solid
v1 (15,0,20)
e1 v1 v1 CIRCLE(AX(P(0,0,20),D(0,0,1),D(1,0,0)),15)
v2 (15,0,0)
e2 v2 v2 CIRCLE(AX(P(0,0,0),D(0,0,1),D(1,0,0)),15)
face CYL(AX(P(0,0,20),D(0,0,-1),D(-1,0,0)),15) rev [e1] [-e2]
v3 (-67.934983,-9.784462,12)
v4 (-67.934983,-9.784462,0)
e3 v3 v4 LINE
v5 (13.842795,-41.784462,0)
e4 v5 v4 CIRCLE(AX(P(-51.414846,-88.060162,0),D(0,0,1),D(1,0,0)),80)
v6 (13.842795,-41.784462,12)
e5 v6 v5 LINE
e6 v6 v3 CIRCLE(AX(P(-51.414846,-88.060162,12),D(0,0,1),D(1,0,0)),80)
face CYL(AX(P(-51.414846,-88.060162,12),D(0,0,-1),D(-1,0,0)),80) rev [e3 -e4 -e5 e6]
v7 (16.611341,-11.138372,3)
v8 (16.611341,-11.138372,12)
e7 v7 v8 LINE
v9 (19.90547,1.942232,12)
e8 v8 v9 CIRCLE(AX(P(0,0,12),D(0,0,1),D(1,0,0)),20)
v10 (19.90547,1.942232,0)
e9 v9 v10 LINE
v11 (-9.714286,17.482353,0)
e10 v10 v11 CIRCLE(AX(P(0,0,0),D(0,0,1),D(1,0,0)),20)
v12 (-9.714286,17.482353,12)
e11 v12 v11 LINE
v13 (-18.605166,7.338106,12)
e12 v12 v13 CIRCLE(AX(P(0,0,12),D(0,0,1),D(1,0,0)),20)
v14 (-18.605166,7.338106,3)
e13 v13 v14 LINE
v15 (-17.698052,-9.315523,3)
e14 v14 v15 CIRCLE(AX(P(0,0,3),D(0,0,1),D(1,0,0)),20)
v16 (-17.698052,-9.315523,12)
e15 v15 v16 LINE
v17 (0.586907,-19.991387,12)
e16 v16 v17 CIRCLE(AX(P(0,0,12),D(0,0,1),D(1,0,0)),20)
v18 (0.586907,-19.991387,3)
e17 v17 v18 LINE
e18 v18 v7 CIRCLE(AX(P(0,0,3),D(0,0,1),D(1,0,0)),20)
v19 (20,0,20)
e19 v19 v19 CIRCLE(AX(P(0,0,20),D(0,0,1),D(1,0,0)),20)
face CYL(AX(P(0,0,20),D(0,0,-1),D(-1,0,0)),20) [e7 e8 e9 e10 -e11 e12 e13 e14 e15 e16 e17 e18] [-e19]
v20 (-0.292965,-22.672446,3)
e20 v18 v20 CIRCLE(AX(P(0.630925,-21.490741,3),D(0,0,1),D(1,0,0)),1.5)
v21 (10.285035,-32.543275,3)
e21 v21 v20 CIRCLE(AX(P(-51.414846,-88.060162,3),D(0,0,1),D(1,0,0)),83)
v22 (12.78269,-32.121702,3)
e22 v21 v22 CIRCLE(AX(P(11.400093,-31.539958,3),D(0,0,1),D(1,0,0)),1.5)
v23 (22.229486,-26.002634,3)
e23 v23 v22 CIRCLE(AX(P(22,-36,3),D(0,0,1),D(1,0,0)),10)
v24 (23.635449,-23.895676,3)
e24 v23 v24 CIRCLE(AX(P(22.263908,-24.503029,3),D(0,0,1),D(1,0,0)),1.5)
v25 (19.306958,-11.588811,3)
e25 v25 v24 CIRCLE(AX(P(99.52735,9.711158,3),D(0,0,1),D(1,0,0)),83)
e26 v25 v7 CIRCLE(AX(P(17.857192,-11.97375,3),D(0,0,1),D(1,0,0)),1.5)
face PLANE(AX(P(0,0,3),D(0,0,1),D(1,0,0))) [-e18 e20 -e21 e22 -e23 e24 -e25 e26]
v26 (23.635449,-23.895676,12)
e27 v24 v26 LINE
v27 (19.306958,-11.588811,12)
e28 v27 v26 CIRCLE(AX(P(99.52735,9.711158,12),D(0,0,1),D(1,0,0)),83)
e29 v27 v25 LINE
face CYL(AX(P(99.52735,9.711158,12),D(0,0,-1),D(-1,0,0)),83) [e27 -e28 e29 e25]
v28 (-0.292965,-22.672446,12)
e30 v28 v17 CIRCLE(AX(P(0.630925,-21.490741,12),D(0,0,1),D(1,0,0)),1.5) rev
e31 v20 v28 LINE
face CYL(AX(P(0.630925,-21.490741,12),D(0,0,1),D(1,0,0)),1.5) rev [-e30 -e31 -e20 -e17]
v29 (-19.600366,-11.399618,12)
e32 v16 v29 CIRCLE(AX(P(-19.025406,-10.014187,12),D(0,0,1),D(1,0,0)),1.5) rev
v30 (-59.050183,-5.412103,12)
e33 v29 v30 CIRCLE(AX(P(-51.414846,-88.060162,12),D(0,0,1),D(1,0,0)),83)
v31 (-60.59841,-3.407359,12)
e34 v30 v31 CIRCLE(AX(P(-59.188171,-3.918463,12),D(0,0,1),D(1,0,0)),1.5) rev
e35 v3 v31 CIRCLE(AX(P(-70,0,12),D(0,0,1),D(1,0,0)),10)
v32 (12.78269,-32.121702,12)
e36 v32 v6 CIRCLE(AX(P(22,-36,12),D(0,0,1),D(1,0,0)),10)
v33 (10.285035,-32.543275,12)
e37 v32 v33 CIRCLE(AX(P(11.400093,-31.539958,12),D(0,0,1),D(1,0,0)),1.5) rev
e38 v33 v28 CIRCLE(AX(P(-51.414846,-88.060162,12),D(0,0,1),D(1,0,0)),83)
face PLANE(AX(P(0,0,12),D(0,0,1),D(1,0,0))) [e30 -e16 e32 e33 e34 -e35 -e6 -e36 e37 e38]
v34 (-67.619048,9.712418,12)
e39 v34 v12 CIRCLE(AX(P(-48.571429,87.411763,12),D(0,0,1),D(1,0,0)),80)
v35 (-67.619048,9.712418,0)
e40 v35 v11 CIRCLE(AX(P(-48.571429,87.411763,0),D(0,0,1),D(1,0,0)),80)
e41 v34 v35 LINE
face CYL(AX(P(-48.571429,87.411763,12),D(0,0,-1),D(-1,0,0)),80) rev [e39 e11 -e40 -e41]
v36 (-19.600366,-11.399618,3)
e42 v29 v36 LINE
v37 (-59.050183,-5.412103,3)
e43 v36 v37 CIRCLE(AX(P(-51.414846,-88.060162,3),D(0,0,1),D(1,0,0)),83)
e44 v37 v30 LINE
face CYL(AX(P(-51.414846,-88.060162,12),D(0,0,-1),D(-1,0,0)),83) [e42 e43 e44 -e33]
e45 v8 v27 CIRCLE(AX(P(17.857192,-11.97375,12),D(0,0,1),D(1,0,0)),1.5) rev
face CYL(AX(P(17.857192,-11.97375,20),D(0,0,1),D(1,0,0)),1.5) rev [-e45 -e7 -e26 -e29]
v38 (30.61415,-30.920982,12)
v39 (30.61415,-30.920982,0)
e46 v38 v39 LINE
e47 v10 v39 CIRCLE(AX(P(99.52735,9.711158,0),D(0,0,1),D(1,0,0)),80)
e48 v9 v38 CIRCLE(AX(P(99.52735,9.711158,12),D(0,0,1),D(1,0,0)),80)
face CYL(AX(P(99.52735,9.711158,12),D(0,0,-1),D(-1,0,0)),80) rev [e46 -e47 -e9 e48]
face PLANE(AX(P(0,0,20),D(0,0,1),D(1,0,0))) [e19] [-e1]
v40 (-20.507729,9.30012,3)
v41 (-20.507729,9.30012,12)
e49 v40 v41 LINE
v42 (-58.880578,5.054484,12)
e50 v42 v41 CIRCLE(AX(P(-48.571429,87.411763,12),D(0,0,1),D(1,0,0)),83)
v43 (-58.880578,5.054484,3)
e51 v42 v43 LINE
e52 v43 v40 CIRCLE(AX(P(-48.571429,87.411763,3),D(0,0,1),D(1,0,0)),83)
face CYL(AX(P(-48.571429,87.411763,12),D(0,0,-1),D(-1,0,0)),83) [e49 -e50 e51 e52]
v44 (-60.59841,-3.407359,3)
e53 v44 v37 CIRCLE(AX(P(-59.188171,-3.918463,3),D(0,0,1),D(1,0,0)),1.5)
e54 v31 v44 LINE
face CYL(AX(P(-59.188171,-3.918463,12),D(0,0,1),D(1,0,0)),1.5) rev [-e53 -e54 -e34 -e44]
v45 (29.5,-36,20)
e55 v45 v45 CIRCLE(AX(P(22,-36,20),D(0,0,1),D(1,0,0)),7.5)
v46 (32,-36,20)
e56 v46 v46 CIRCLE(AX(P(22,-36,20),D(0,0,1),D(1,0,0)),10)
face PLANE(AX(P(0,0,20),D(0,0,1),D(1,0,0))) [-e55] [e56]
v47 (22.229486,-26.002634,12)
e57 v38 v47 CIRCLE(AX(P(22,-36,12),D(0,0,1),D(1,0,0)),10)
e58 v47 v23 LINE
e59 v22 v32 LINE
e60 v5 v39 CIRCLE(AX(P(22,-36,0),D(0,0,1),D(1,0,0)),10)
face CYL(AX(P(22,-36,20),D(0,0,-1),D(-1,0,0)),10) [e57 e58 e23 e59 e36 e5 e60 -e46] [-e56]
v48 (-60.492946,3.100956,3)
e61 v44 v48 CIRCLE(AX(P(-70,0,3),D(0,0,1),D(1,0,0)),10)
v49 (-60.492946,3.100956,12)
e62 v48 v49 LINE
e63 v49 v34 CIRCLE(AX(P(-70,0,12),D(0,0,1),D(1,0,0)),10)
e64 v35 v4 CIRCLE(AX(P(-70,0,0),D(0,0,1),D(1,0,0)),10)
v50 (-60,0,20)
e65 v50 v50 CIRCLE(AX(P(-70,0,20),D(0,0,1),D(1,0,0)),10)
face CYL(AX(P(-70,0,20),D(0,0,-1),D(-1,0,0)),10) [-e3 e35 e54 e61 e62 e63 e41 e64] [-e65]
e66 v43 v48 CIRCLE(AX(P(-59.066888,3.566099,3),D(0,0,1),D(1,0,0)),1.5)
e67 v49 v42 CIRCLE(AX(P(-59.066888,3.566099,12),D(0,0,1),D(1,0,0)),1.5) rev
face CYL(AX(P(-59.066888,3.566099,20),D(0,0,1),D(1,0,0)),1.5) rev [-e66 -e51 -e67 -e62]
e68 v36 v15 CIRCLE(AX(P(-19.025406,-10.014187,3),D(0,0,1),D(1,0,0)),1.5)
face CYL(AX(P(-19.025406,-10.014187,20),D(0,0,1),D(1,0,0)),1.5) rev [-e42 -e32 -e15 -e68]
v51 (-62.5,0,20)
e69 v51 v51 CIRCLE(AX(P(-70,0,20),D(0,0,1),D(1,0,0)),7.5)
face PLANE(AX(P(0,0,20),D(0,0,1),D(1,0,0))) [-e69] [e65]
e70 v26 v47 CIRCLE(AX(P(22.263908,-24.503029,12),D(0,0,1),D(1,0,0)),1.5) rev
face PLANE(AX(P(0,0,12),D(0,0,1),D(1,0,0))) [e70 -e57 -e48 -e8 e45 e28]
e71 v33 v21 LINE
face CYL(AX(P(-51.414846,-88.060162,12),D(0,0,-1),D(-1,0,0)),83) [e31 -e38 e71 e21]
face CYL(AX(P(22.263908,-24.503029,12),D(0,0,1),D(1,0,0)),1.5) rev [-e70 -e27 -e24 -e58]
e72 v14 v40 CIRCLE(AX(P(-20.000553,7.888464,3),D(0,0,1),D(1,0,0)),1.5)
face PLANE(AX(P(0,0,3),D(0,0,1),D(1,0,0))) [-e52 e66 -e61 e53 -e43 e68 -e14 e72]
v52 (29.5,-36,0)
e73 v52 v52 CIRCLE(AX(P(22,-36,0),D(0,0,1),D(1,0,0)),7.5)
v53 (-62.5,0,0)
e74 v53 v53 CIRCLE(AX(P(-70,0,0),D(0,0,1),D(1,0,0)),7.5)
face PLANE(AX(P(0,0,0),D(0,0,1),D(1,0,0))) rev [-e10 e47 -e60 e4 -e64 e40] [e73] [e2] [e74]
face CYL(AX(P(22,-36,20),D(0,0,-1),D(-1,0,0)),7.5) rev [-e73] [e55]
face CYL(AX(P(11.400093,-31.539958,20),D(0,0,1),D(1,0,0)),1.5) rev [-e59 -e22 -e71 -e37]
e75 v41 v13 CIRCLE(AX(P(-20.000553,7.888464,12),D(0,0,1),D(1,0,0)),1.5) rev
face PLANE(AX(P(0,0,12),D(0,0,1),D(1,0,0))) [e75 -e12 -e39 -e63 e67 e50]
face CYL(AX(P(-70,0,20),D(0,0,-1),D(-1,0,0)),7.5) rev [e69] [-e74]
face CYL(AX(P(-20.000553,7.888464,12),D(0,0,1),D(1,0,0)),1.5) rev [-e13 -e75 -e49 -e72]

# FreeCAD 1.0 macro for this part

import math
import FreeCAD as App
import Part
import Sketcher
from FreeCAD import Vector
Q = App.Units.Quantity


def edges_at(feature, points):
    """Names of the edges that pass closest to the given points."""
    edges = feature.Shape.Edges
    near = lambda p: min(range(len(edges)), key=lambda i: edges[i].distToShape(Part.Vertex(*p))[0])
    return sorted({f"Edge{near(p) + 1}" for p in points})

doc = App.newDocument("Part")
params = doc.addObject("Spreadsheet::Sheet", "Params")
for row, (alias, value) in enumerate([
    ("sketch1_diameter", "40 mm"),
    ("pad1_length", "20 mm"),
    ("sketch2_diameter", "30 mm"),
    ("pocket1_length", "20 mm"),
    ("sketch3_diameter", "20 mm"),
    ("sketch3_diameter2", "15 mm"),
    ("pad2_length", "20 mm"),
    ("sketch4_radius", "10 mm"),
    ("sketch4_radius2", "83 mm"),
    ("sketch4_radius3", "20 mm"),
    ("sketch4_radius4", "80 mm"),
    ("pad3_length", "12 mm"),
    ("sketch5_radius", "10 mm"),
    ("sketch5_radius2", "83 mm"),
    ("sketch5_radius3", "20 mm"),
    ("pad4_length", "3 mm"),
    ("fillet_radius", "1.5 mm"),
], start=1):
    params.set(f"A{row}", alias)
    params.set(f"B{row}", "=" + value)
    params.setAlias(f"B{row}", alias)

body = doc.addObject("PartDesign::Body", "Body")

sketch1 = body.newObject("Sketcher::SketchObject", "Sketch")
sketch1.AttachmentSupport = (doc.getObject("XY_Plane"), [""])
sketch1.MapMode = "FlatFace"
sketch1.addGeometry(Part.Circle(Vector(0, 0, 0), Vector(0, 0, 1), 20), False)
sketch1.addConstraint(Sketcher.Constraint("Coincident", 0, 3, -1, 1))
sketch1.addConstraint(Sketcher.Constraint("Diameter", 0, Q("40 mm")))
sketch1.setExpression("Constraints[1]", "Params.sketch1_diameter")
pad1 = body.newObject("PartDesign::Pad", "Pad")
pad1.Profile = sketch1
pad1.setExpression("Length", "Params.pad1_length")

sketch2 = body.newObject("Sketcher::SketchObject", "Sketch001")
sketch2.AttachmentSupport = (doc.getObject("XY_Plane"), [""])
sketch2.MapMode = "FlatFace"
sketch2.addGeometry(Part.Circle(Vector(0, 0, 0), Vector(0, 0, 1), 15), False)
sketch2.addConstraint(Sketcher.Constraint("Coincident", 0, 3, -1, 1))
sketch2.addConstraint(Sketcher.Constraint("Diameter", 0, Q("30 mm")))
sketch2.setExpression("Constraints[1]", "Params.sketch2_diameter")
pocket1 = body.newObject("PartDesign::Pocket", "Pocket")
pocket1.Profile = sketch2
pocket1.setExpression("Length", "Params.pocket1_length")
pocket1.Reversed = True
body2 = doc.addObject("PartDesign::Body", "Body001")
body2.AllowCompound = True

sketch3 = body2.newObject("Sketcher::SketchObject", "Sketch002")
sketch3.AttachmentSupport = (doc.getObject("XY_Plane001"), [""])
sketch3.MapMode = "FlatFace"
sketch3.addGeometry(Part.Circle(Vector(-70, 0, 0), Vector(0, 0, 1), 10), False)
sketch3.addGeometry(Part.Circle(Vector(-70, 0, 0), Vector(0, 0, 1), 8), False)
sketch3.addGeometry(Part.Circle(Vector(22, -36, 0), Vector(0, 0, 1), 10), False)
sketch3.addGeometry(Part.Circle(Vector(22, -36, 0), Vector(0, 0, 1), 8), False)
sketch3.addConstraint(Sketcher.Constraint("Coincident", 1, 3, 0, 3))
sketch3.addConstraint(Sketcher.Constraint("Coincident", 3, 3, 2, 3))
sketch3.addConstraint(Sketcher.Constraint("Equal", 0, 2))
sketch3.addConstraint(Sketcher.Constraint("Equal", 1, 3))
sketch3.addConstraint(Sketcher.Constraint("PointOnObject", 0, 3, -1))
sketch3.addConstraint(Sketcher.Constraint("Diameter", 0, Q("20 mm")))
sketch3.addConstraint(Sketcher.Constraint("Diameter", 1, Q("15 mm")))
sketch3.addConstraint(Sketcher.Constraint("DistanceX", 0, 3, -1, 1, Q("70 mm")))
sketch3.addConstraint(Sketcher.Constraint("DistanceX", -1, 1, 2, 3, Q("22 mm")))
sketch3.addConstraint(Sketcher.Constraint("DistanceY", 2, 3, -1, 1, Q("36 mm")))
sketch3.setExpression("Constraints[5]", "Params.sketch3_diameter")
sketch3.setExpression("Constraints[6]", "Params.sketch3_diameter2")
pad2 = body2.newObject("PartDesign::Pad", "Pad001")
pad2.Profile = sketch3
pad2.setExpression("Length", "Params.pad2_length")
body.AllowCompound = True
doc.recompute()

boolean = body.newObject("PartDesign::Boolean", "Boolean")
boolean.Type = "Fuse"
boolean.addObjects([body2])

sketch4 = body.newObject("Sketcher::SketchObject", "Sketch003")
sketch4.AttachmentSupport = (doc.getObject("XY_Plane"), [""])
sketch4.MapMode = "FlatFace"
sketch4.addGeometry(Part.ArcOfCircle(Part.Circle(Vector(-70, 0, 0), Vector(0, 0, 1), 10), math.radians(33), math.radians(76)), False)
sketch4.addGeometry(Part.ArcOfCircle(Part.Circle(Vector(-48.6, 87.4, 0), Vector(0, 0, 1), 83), math.radians(-99), math.radians(-68)), False)
sketch4.addGeometry(Part.ArcOfCircle(Part.Circle(Vector(0, 0, 0), Vector(0, 0, 1), 20), math.radians(119), math.radians(148)), False)
sketch4.addGeometry(Part.ArcOfCircle(Part.Circle(Vector(-48.6, 87.4, 0), Vector(0, 0, 1), 80), math.radians(-104), math.radians(-61)), False)
sketch4.addGeometry(Part.ArcOfCircle(Part.Circle(Vector(-51.4, -88.1, 0), Vector(0, 0, 1), 83), math.radians(64), math.radians(97)), False)
sketch4.addGeometry(Part.ArcOfCircle(Part.Circle(Vector(-70, 0, 0), Vector(0, 0, 1), 10), math.radians(-78), math.radians(-35)), False)
sketch4.addGeometry(Part.ArcOfCircle(Part.Circle(Vector(-51.4, -88.1, 0), Vector(0, 0, 1), 80), math.radians(35), math.radians(102)), False)
sketch4.addGeometry(Part.ArcOfCircle(Part.Circle(Vector(22, -36, 0), Vector(0, 0, 1), 10), math.radians(172), math.radians(215)), False)
sketch4.addGeometry(Part.ArcOfCircle(Part.Circle(Vector(-51.4, -88.1, 0), Vector(0, 0, 1), 83), math.radians(40.08), math.radians(55.78)), False)
sketch4.addGeometry(Part.ArcOfCircle(Part.Circle(Vector(0, 0, 0), Vector(0, 0, 1), 20), math.radians(-137), math.radians(-104)), False)
sketch4.addGeometry(Part.ArcOfCircle(Part.Circle(Vector(99.5, 9.7, 0), Vector(0, 0, 1), 80), math.radians(-174), math.radians(-149)), False)
sketch4.addGeometry(Part.ArcOfCircle(Part.Circle(Vector(0, 0, 0), Vector(0, 0, 1), 20), math.radians(0), math.radians(5.57)), False)
sketch4.addGeometry(Part.ArcOfCircle(Part.Circle(Vector(0, 0, 0), Vector(0, 0, 1), 20), math.radians(-23), math.radians(0)), False)
sketch4.addGeometry(Part.ArcOfCircle(Part.Circle(Vector(99.5, 9.7, 0), Vector(0, 0, 1), 83), math.radians(-167.8), math.radians(-154.21)), False)
sketch4.addGeometry(Part.ArcOfCircle(Part.Circle(Vector(22, -36, 0), Vector(0, 0, 1), 10), math.radians(31), math.radians(74)), False)
sketch4.addConstraint(Sketcher.Constraint("Coincident", 0, 1, 1, 1))
sketch4.addConstraint(Sketcher.Constraint("Coincident", 1, 2, 2, 2))
sketch4.addConstraint(Sketcher.Constraint("Tangent", 2, 1, 3, 2))
sketch4.addConstraint(Sketcher.Constraint("Tangent", 3, 1, 0, 2))
sketch4.addConstraint(Sketcher.Constraint("Coincident", 4, 2, 5, 2))
sketch4.addConstraint(Sketcher.Constraint("Tangent", 5, 1, 6, 2))
sketch4.addConstraint(Sketcher.Constraint("Tangent", 6, 1, 7, 2))
sketch4.addConstraint(Sketcher.Constraint("Coincident", 7, 1, 8, 1))
sketch4.addConstraint(Sketcher.Constraint("Coincident", 8, 2, 9, 2))
sketch4.addConstraint(Sketcher.Constraint("Coincident", 9, 1, 4, 1))
sketch4.addConstraint(Sketcher.Constraint("Tangent", 10, 1, 11, 2))
sketch4.addConstraint(Sketcher.Constraint("Tangent", 11, 1, 12, 2))
sketch4.addConstraint(Sketcher.Constraint("Coincident", 12, 1, 13, 1))
sketch4.addConstraint(Sketcher.Constraint("Coincident", 13, 2, 14, 2))
sketch4.addConstraint(Sketcher.Constraint("Tangent", 14, 1, 10, 2))
sketch4.addConstraint(Sketcher.Constraint("Coincident", 2, 3, -1, 1))
sketch4.addConstraint(Sketcher.Constraint("Coincident", 9, 3, -1, 1))
sketch4.addConstraint(Sketcher.Constraint("Coincident", 11, 3, -1, 1))
sketch4.addConstraint(Sketcher.Constraint("Coincident", 3, 3, 1, 3))
sketch4.addConstraint(Sketcher.Constraint("Coincident", 5, 3, 0, 3))
sketch4.addConstraint(Sketcher.Constraint("Coincident", 6, 3, 4, 3))
sketch4.addConstraint(Sketcher.Constraint("Coincident", 8, 3, 4, 3))
sketch4.addConstraint(Sketcher.Constraint("Coincident", 13, 3, 10, 3))
sketch4.addConstraint(Sketcher.Constraint("Coincident", 14, 3, 7, 3))
sketch4.addConstraint(Sketcher.Constraint("Equal", 1, 4))
sketch4.addConstraint(Sketcher.Constraint("Equal", 0, 5))
sketch4.addConstraint(Sketcher.Constraint("Equal", 3, 6))
sketch4.addConstraint(Sketcher.Constraint("Equal", 5, 7))
sketch4.addConstraint(Sketcher.Constraint("Equal", 4, 8))
sketch4.addConstraint(Sketcher.Constraint("Equal", 2, 9))
sketch4.addConstraint(Sketcher.Constraint("Equal", 6, 10))
sketch4.addConstraint(Sketcher.Constraint("Equal", 9, 11))
sketch4.addConstraint(Sketcher.Constraint("Equal", 11, 12))
sketch4.addConstraint(Sketcher.Constraint("Equal", 8, 13))
sketch4.addConstraint(Sketcher.Constraint("Equal", 7, 14))
sketch4.addConstraint(Sketcher.Constraint("PointOnObject", 0, 3, -1))
sketch4.addConstraint(Sketcher.Constraint("PointOnObject", 11, 1, -1))
sketch4.addConstraint(Sketcher.Constraint("Radius", 0, Q("10 mm")))
sketch4.addConstraint(Sketcher.Constraint("Radius", 1, Q("83 mm")))
sketch4.addConstraint(Sketcher.Constraint("Radius", 2, Q("20 mm")))
sketch4.addConstraint(Sketcher.Constraint("Radius", 3, Q("80 mm")))
sketch4.addConstraint(Sketcher.Constraint("DistanceX", 0, 3, -1, 1, Q("70 mm")))
sketch4.addConstraint(Sketcher.Constraint("DistanceX", -1, 1, 7, 3, Q("22 mm")))
sketch4.addConstraint(Sketcher.Constraint("DistanceY", 7, 3, -1, 1, Q("36 mm")))
sketch4.setExpression("Constraints[37]", "Params.sketch4_radius")
sketch4.setExpression("Constraints[38]", "Params.sketch4_radius2")
sketch4.setExpression("Constraints[39]", "Params.sketch4_radius3")
sketch4.setExpression("Constraints[40]", "Params.sketch4_radius4")
pad3 = body.newObject("PartDesign::Pad", "Pad002")
pad3.Profile = sketch4
pad3.setExpression("Length", "Params.pad3_length")

sketch5 = body.newObject("Sketcher::SketchObject", "Sketch004")
sketch5.AttachmentSupport = (doc.getObject("XY_Plane"), [""])
sketch5.MapMode = "FlatFace"
sketch5.addGeometry(Part.ArcOfCircle(Part.Circle(Vector(-70, 0, 0), Vector(0, 0, 1), 10), math.radians(0), math.radians(33)), False)
sketch5.addGeometry(Part.ArcOfCircle(Part.Circle(Vector(-70, 0, 0), Vector(0, 0, 1), 10), math.radians(-35), math.radians(0)), False)
sketch5.addGeometry(Part.ArcOfCircle(Part.Circle(Vector(-51, -88, 0), Vector(0, 0, 1), 83), math.radians(64), math.radians(97)), False)
sketch5.addGeometry(Part.ArcOfCircle(Part.Circle(Vector(0, 0, 0), Vector(0, 0, 1), 20), math.radians(148), math.radians(223)), False)
sketch5.addGeometry(Part.ArcOfCircle(Part.Circle(Vector(-49, 87, 0), Vector(0, 0, 1), 83), math.radians(-99), math.radians(-68)), False)
sketch5.addGeometry(Part.ArcOfCircle(Part.Circle(Vector(0, 0, 0), Vector(0, 0, 1), 20), math.radians(-104), math.radians(-23)), False)
sketch5.addGeometry(Part.ArcOfCircle(Part.Circle(Vector(-51, -88, 0), Vector(0, 0, 1), 83), math.radians(40.08), math.radians(55.78)), False)
sketch5.addGeometry(Part.ArcOfCircle(Part.Circle(Vector(22, -36, 0), Vector(0, 0, 1), 10), math.radians(74), math.radians(172)), False)
sketch5.addGeometry(Part.ArcOfCircle(Part.Circle(Vector(100, 10, 0), Vector(0, 0, 1), 83), math.radians(-167.8), math.radians(-154.21)), False)
sketch5.addConstraint(Sketcher.Constraint("Tangent", 0, 1, 1, 2))
sketch5.addConstraint(Sketcher.Constraint("Coincident", 1, 1, 2, 2))
sketch5.addConstraint(Sketcher.Constraint("Coincident", 2, 1, 3, 2))
sketch5.addConstraint(Sketcher.Constraint("Coincident", 3, 1, 4, 2))
sketch5.addConstraint(Sketcher.Constraint("Coincident", 4, 1, 0, 2))
sketch5.addConstraint(Sketcher.Constraint("Coincident", 5, 1, 6, 2))
sketch5.addConstraint(Sketcher.Constraint("Coincident", 6, 1, 7, 2))
sketch5.addConstraint(Sketcher.Constraint("Coincident", 7, 1, 8, 2))
sketch5.addConstraint(Sketcher.Constraint("Coincident", 8, 1, 5, 2))
sketch5.addConstraint(Sketcher.Constraint("Coincident", 3, 3, -1, 1))
sketch5.addConstraint(Sketcher.Constraint("Coincident", 5, 3, -1, 1))
sketch5.addConstraint(Sketcher.Constraint("Coincident", 6, 3, 2, 3))
sketch5.addConstraint(Sketcher.Constraint("Equal", 0, 1))
sketch5.addConstraint(Sketcher.Constraint("Equal", 2, 4))
sketch5.addConstraint(Sketcher.Constraint("Equal", 3, 5))
sketch5.addConstraint(Sketcher.Constraint("Equal", 4, 6))
sketch5.addConstraint(Sketcher.Constraint("Equal", 1, 7))
sketch5.addConstraint(Sketcher.Constraint("Equal", 6, 8))
sketch5.addConstraint(Sketcher.Constraint("PointOnObject", 0, 3, -1))
sketch5.addConstraint(Sketcher.Constraint("PointOnObject", 0, 1, -1))
sketch5.addConstraint(Sketcher.Constraint("Radius", 0, Q("10 mm")))
sketch5.addConstraint(Sketcher.Constraint("Radius", 2, Q("83 mm")))
sketch5.addConstraint(Sketcher.Constraint("Radius", 3, Q("20 mm")))
sketch5.addConstraint(Sketcher.Constraint("DistanceX", 0, 3, -1, 1, Q("70 mm")))
sketch5.addConstraint(Sketcher.Constraint("DistanceX", -1, 1, 7, 3, Q("22 mm")))
sketch5.addConstraint(Sketcher.Constraint("DistanceY", 7, 3, -1, 1, Q("36 mm")))
sketch5.addConstraint(Sketcher.Constraint("DistanceX", 4, 1, -1, 1, Q("61.610701 mm")))
sketch5.addConstraint(Sketcher.Constraint("DistanceX", 1, 1, 3, 1, Q("44.8886 mm")))
sketch5.addConstraint(Sketcher.Constraint("DistanceY", 5, 1, 3, 1, Q("30.122602 mm")))
sketch5.addConstraint(Sketcher.Constraint("DistanceY", 2, 3, -1, 1, Q("88.060162 mm")))
sketch5.addConstraint(Sketcher.Constraint("DistanceX", -1, 1, 8, 3, Q("99.52735 mm")))
sketch5.addConstraint(Sketcher.Constraint("DistanceY", -1, 1, 8, 3, Q("9.711158 mm")))
sketch5.setExpression("Constraints[20]", "Params.sketch5_radius")
sketch5.setExpression("Constraints[21]", "Params.sketch5_radius2")
sketch5.setExpression("Constraints[22]", "Params.sketch5_radius3")
pad4 = body.newObject("PartDesign::Pad", "Pad003")
pad4.Profile = sketch5
pad4.setExpression("Length", "Params.pad4_length")
doc.recompute()

fillet = body.newObject("PartDesign::Fillet", "Fillet")
fillet.Base = (pad4, edges_at(pad4, [
    (-61.611, 5.442, 7.5),
    (-16.903, 10.691, 7.5),
    (-4.734, -19.432, 7.5),
    (-14.595, -13.674, 7.5),
    (-61.791, -5.711, 7.5),
    (12.095, -34.624, 7.5),
    (18.403, -7.832, 7.5),
    (24.794, -26.398, 7.5),
]))
fillet.setExpression("Radius", "Params.fillet_radius")

doc.recompute()
